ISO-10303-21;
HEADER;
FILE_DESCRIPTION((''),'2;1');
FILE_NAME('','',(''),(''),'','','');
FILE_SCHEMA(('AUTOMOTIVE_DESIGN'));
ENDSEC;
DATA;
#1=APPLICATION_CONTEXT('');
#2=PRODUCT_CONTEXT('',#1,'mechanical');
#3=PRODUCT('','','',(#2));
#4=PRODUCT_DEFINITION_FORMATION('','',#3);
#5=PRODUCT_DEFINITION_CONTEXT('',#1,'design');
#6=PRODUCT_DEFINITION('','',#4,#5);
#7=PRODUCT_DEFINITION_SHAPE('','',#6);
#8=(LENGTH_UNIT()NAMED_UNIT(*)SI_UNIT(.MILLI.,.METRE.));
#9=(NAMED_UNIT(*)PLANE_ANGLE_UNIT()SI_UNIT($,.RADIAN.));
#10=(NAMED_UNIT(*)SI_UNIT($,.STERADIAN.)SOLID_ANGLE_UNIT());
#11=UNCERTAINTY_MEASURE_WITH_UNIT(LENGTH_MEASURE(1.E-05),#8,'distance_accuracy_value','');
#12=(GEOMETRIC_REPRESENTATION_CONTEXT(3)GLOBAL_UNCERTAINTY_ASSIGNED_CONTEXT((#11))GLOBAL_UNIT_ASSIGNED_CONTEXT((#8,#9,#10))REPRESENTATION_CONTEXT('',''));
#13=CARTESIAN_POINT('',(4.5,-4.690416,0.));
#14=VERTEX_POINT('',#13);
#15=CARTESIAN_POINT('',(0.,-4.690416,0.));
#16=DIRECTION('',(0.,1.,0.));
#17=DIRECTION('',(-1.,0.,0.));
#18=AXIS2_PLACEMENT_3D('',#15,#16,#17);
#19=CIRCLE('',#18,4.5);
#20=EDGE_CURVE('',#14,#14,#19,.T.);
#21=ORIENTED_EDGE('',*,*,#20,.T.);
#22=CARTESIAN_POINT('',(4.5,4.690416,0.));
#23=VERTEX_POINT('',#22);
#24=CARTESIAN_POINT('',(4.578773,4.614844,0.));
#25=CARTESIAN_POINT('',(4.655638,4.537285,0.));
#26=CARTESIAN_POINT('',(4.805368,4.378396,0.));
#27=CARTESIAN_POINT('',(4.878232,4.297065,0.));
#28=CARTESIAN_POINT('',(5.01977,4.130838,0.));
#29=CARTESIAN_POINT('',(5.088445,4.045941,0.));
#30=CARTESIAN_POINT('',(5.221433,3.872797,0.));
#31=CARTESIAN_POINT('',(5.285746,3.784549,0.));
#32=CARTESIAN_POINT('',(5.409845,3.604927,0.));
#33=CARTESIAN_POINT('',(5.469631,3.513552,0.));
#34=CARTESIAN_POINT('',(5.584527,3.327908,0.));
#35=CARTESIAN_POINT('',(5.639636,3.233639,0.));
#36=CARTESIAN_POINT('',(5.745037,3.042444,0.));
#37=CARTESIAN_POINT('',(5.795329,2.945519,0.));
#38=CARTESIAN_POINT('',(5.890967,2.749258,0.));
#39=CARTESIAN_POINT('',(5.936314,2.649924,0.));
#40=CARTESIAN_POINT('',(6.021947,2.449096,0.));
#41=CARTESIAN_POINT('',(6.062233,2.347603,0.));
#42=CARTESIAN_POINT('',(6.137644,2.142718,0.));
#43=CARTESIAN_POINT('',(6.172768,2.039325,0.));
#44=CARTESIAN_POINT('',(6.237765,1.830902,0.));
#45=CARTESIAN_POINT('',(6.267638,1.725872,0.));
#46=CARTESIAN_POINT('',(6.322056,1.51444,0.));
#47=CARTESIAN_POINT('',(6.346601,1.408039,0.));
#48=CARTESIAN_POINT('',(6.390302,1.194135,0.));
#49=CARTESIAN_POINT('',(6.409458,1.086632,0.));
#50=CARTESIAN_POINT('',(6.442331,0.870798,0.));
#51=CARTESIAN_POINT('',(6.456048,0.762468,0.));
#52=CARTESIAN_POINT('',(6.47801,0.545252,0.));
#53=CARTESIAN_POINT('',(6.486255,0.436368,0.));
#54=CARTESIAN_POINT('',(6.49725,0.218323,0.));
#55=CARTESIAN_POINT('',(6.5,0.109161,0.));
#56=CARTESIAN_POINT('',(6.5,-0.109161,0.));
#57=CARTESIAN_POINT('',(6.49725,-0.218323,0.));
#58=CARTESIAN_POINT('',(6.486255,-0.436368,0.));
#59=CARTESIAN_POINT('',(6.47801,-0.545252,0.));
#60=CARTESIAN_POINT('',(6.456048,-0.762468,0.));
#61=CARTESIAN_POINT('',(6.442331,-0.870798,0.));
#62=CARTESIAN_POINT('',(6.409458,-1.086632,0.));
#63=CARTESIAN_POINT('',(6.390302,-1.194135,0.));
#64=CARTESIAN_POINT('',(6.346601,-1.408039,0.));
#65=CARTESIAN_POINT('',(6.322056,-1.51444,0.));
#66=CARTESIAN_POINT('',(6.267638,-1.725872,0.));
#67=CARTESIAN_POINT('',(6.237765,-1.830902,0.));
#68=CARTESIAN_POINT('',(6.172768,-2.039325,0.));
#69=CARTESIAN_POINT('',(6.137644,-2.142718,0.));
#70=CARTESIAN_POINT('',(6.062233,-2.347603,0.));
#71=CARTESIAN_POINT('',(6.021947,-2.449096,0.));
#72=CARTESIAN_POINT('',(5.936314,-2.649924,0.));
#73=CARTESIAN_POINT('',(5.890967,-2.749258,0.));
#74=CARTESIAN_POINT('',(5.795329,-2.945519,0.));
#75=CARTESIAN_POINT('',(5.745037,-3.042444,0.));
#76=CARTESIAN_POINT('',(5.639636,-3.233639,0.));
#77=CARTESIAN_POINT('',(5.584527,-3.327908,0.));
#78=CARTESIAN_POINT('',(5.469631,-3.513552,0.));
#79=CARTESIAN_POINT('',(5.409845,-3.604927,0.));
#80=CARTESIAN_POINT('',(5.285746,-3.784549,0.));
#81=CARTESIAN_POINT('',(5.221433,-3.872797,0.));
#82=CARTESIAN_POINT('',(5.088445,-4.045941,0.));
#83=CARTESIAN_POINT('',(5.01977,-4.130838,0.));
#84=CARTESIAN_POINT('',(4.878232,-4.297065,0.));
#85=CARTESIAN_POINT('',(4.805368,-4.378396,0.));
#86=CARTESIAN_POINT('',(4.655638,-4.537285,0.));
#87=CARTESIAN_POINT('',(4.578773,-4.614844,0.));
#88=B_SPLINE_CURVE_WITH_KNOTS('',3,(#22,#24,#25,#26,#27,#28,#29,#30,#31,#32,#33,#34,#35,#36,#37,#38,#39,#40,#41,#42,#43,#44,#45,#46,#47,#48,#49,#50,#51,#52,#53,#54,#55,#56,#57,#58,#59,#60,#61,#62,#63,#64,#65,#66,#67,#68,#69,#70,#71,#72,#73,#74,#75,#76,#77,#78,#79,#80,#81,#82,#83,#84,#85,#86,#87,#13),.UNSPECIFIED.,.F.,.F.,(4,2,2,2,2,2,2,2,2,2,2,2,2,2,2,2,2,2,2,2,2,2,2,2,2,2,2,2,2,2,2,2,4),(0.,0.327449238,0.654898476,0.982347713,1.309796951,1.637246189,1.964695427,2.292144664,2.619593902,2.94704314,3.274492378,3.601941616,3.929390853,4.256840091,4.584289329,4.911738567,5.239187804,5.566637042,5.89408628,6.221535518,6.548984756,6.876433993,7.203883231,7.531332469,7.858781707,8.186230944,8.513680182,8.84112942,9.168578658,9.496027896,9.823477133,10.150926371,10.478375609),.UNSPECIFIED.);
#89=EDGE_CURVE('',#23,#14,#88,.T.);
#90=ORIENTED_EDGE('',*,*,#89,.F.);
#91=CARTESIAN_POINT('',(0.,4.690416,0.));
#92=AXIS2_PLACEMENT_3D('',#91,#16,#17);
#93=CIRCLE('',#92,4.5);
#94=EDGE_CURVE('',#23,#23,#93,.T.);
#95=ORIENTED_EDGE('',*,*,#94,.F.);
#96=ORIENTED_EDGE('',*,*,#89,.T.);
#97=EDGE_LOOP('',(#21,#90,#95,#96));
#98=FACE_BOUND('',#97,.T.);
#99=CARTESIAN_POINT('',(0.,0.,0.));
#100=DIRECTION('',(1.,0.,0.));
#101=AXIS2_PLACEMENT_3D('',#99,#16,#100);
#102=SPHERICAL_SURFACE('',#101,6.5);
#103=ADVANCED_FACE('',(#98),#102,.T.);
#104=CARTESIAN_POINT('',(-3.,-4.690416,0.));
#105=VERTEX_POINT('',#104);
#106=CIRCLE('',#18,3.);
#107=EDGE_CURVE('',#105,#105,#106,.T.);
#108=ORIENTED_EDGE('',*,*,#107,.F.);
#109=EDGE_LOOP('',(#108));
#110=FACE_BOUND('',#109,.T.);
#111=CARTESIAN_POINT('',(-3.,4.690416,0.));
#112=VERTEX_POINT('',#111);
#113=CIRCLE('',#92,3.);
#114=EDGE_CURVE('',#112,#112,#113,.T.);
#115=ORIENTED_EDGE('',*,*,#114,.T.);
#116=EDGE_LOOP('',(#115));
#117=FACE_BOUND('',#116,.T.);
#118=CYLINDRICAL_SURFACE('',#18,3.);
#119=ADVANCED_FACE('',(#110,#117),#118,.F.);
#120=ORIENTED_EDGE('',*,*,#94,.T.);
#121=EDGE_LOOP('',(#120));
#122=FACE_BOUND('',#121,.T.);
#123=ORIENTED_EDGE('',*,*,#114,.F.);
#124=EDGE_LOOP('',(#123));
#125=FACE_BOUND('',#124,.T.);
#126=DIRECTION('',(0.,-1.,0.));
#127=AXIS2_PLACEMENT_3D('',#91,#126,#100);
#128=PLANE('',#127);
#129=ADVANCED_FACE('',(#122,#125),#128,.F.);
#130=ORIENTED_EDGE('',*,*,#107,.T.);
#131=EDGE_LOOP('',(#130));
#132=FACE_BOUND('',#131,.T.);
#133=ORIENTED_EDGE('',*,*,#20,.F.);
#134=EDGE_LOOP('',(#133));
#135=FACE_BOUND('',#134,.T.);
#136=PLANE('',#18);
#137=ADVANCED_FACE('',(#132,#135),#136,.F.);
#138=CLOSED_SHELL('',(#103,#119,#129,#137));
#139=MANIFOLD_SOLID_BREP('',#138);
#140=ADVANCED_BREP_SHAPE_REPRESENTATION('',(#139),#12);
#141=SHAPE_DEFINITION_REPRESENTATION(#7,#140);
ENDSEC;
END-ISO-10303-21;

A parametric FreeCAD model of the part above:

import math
import FreeCAD as App
import Part
import Sketcher
Q = App.Units.Quantity

doc = App.newDocument("Part")
body = doc.addObject("PartDesign::Body", "Body")

# Sketch on XY plane
sketch1 = doc.addObject("Sketcher::SketchObject", "Sketch")
body.addObject(sketch1)
sketch1.AttachmentSupport = (doc.XY_Plane, [""])
sketch1.MapMode = "FlatFace"
sketch1.addGeometry([
    Part.LineSegment(App.Vector(4.5, 4.7, 0), App.Vector(0, 4.7, 0)),
    Part.LineSegment(App.Vector(0, 4.7, 0), App.Vector(0, -4.7, 0)),
    Part.LineSegment(App.Vector(0, -4.7, 0), App.Vector(4.5, -4.7, 0)),
    Part.ArcOfCircle(Part.Circle(App.Vector(0, 0, 0), App.Vector(0, 0, 1), 6.5), math.radians(-46), math.radians(46)),
], False)
sketch1.addConstraint([
    Sketcher.Constraint("Coincident", 0, 2, 1, 1),
    Sketcher.Constraint("Coincident", 1, 2, 2, 1),
    Sketcher.Constraint("Coincident", 2, 2, 3, 1),
    Sketcher.Constraint("Coincident", 3, 2, 0, 1),
    Sketcher.Constraint("Horizontal", 0),
    Sketcher.Constraint("Vertical", 1),
    Sketcher.Constraint("Horizontal", 2),
    Sketcher.Constraint("Coincident", 3, 3, -1, 1),
    Sketcher.Constraint("Symmetric", 0, 2, 1, 2, -1, 1),
    Sketcher.Constraint("Radius", 3, Q("6.5 mm")),
    Sketcher.Constraint("DistanceX", 0, 2, 0, 1, Q("4.5 mm")),
])
revolution = doc.addObject("PartDesign::Revolution", "Revolution")
body.addObject(revolution)
revolution.Profile = sketch1
revolution.ReferenceAxis = (sketch1, ["V_Axis"])
revolution.Angle = 360

# Sketch on XZ plane
sketch2 = doc.addObject("Sketcher::SketchObject", "Sketch001")
body.addObject(sketch2)
sketch2.AttachmentSupport = (doc.XZ_Plane, [""])
sketch2.MapMode = "FlatFace"
sketch2.AttachmentOffset = App.Placement(App.Vector(0, 0, -4.690416), App.Rotation())
sketch2.addGeometry(Part.Circle(App.Vector(0, 0, 0), App.Vector(0, 0, 1), 3), False)
sketch2.addConstraint([
    Sketcher.Constraint("Coincident", 0, 3, -1, 1),
    Sketcher.Constraint("Diameter", 0, Q("6 mm")),
])
pocket1 = doc.addObject("PartDesign::Pocket", "Pocket")
body.addObject(pocket1)
pocket1.Profile = sketch2
pocket1.Type = "ThroughAll"
pocket1.Reversed = True

doc.recompute()
